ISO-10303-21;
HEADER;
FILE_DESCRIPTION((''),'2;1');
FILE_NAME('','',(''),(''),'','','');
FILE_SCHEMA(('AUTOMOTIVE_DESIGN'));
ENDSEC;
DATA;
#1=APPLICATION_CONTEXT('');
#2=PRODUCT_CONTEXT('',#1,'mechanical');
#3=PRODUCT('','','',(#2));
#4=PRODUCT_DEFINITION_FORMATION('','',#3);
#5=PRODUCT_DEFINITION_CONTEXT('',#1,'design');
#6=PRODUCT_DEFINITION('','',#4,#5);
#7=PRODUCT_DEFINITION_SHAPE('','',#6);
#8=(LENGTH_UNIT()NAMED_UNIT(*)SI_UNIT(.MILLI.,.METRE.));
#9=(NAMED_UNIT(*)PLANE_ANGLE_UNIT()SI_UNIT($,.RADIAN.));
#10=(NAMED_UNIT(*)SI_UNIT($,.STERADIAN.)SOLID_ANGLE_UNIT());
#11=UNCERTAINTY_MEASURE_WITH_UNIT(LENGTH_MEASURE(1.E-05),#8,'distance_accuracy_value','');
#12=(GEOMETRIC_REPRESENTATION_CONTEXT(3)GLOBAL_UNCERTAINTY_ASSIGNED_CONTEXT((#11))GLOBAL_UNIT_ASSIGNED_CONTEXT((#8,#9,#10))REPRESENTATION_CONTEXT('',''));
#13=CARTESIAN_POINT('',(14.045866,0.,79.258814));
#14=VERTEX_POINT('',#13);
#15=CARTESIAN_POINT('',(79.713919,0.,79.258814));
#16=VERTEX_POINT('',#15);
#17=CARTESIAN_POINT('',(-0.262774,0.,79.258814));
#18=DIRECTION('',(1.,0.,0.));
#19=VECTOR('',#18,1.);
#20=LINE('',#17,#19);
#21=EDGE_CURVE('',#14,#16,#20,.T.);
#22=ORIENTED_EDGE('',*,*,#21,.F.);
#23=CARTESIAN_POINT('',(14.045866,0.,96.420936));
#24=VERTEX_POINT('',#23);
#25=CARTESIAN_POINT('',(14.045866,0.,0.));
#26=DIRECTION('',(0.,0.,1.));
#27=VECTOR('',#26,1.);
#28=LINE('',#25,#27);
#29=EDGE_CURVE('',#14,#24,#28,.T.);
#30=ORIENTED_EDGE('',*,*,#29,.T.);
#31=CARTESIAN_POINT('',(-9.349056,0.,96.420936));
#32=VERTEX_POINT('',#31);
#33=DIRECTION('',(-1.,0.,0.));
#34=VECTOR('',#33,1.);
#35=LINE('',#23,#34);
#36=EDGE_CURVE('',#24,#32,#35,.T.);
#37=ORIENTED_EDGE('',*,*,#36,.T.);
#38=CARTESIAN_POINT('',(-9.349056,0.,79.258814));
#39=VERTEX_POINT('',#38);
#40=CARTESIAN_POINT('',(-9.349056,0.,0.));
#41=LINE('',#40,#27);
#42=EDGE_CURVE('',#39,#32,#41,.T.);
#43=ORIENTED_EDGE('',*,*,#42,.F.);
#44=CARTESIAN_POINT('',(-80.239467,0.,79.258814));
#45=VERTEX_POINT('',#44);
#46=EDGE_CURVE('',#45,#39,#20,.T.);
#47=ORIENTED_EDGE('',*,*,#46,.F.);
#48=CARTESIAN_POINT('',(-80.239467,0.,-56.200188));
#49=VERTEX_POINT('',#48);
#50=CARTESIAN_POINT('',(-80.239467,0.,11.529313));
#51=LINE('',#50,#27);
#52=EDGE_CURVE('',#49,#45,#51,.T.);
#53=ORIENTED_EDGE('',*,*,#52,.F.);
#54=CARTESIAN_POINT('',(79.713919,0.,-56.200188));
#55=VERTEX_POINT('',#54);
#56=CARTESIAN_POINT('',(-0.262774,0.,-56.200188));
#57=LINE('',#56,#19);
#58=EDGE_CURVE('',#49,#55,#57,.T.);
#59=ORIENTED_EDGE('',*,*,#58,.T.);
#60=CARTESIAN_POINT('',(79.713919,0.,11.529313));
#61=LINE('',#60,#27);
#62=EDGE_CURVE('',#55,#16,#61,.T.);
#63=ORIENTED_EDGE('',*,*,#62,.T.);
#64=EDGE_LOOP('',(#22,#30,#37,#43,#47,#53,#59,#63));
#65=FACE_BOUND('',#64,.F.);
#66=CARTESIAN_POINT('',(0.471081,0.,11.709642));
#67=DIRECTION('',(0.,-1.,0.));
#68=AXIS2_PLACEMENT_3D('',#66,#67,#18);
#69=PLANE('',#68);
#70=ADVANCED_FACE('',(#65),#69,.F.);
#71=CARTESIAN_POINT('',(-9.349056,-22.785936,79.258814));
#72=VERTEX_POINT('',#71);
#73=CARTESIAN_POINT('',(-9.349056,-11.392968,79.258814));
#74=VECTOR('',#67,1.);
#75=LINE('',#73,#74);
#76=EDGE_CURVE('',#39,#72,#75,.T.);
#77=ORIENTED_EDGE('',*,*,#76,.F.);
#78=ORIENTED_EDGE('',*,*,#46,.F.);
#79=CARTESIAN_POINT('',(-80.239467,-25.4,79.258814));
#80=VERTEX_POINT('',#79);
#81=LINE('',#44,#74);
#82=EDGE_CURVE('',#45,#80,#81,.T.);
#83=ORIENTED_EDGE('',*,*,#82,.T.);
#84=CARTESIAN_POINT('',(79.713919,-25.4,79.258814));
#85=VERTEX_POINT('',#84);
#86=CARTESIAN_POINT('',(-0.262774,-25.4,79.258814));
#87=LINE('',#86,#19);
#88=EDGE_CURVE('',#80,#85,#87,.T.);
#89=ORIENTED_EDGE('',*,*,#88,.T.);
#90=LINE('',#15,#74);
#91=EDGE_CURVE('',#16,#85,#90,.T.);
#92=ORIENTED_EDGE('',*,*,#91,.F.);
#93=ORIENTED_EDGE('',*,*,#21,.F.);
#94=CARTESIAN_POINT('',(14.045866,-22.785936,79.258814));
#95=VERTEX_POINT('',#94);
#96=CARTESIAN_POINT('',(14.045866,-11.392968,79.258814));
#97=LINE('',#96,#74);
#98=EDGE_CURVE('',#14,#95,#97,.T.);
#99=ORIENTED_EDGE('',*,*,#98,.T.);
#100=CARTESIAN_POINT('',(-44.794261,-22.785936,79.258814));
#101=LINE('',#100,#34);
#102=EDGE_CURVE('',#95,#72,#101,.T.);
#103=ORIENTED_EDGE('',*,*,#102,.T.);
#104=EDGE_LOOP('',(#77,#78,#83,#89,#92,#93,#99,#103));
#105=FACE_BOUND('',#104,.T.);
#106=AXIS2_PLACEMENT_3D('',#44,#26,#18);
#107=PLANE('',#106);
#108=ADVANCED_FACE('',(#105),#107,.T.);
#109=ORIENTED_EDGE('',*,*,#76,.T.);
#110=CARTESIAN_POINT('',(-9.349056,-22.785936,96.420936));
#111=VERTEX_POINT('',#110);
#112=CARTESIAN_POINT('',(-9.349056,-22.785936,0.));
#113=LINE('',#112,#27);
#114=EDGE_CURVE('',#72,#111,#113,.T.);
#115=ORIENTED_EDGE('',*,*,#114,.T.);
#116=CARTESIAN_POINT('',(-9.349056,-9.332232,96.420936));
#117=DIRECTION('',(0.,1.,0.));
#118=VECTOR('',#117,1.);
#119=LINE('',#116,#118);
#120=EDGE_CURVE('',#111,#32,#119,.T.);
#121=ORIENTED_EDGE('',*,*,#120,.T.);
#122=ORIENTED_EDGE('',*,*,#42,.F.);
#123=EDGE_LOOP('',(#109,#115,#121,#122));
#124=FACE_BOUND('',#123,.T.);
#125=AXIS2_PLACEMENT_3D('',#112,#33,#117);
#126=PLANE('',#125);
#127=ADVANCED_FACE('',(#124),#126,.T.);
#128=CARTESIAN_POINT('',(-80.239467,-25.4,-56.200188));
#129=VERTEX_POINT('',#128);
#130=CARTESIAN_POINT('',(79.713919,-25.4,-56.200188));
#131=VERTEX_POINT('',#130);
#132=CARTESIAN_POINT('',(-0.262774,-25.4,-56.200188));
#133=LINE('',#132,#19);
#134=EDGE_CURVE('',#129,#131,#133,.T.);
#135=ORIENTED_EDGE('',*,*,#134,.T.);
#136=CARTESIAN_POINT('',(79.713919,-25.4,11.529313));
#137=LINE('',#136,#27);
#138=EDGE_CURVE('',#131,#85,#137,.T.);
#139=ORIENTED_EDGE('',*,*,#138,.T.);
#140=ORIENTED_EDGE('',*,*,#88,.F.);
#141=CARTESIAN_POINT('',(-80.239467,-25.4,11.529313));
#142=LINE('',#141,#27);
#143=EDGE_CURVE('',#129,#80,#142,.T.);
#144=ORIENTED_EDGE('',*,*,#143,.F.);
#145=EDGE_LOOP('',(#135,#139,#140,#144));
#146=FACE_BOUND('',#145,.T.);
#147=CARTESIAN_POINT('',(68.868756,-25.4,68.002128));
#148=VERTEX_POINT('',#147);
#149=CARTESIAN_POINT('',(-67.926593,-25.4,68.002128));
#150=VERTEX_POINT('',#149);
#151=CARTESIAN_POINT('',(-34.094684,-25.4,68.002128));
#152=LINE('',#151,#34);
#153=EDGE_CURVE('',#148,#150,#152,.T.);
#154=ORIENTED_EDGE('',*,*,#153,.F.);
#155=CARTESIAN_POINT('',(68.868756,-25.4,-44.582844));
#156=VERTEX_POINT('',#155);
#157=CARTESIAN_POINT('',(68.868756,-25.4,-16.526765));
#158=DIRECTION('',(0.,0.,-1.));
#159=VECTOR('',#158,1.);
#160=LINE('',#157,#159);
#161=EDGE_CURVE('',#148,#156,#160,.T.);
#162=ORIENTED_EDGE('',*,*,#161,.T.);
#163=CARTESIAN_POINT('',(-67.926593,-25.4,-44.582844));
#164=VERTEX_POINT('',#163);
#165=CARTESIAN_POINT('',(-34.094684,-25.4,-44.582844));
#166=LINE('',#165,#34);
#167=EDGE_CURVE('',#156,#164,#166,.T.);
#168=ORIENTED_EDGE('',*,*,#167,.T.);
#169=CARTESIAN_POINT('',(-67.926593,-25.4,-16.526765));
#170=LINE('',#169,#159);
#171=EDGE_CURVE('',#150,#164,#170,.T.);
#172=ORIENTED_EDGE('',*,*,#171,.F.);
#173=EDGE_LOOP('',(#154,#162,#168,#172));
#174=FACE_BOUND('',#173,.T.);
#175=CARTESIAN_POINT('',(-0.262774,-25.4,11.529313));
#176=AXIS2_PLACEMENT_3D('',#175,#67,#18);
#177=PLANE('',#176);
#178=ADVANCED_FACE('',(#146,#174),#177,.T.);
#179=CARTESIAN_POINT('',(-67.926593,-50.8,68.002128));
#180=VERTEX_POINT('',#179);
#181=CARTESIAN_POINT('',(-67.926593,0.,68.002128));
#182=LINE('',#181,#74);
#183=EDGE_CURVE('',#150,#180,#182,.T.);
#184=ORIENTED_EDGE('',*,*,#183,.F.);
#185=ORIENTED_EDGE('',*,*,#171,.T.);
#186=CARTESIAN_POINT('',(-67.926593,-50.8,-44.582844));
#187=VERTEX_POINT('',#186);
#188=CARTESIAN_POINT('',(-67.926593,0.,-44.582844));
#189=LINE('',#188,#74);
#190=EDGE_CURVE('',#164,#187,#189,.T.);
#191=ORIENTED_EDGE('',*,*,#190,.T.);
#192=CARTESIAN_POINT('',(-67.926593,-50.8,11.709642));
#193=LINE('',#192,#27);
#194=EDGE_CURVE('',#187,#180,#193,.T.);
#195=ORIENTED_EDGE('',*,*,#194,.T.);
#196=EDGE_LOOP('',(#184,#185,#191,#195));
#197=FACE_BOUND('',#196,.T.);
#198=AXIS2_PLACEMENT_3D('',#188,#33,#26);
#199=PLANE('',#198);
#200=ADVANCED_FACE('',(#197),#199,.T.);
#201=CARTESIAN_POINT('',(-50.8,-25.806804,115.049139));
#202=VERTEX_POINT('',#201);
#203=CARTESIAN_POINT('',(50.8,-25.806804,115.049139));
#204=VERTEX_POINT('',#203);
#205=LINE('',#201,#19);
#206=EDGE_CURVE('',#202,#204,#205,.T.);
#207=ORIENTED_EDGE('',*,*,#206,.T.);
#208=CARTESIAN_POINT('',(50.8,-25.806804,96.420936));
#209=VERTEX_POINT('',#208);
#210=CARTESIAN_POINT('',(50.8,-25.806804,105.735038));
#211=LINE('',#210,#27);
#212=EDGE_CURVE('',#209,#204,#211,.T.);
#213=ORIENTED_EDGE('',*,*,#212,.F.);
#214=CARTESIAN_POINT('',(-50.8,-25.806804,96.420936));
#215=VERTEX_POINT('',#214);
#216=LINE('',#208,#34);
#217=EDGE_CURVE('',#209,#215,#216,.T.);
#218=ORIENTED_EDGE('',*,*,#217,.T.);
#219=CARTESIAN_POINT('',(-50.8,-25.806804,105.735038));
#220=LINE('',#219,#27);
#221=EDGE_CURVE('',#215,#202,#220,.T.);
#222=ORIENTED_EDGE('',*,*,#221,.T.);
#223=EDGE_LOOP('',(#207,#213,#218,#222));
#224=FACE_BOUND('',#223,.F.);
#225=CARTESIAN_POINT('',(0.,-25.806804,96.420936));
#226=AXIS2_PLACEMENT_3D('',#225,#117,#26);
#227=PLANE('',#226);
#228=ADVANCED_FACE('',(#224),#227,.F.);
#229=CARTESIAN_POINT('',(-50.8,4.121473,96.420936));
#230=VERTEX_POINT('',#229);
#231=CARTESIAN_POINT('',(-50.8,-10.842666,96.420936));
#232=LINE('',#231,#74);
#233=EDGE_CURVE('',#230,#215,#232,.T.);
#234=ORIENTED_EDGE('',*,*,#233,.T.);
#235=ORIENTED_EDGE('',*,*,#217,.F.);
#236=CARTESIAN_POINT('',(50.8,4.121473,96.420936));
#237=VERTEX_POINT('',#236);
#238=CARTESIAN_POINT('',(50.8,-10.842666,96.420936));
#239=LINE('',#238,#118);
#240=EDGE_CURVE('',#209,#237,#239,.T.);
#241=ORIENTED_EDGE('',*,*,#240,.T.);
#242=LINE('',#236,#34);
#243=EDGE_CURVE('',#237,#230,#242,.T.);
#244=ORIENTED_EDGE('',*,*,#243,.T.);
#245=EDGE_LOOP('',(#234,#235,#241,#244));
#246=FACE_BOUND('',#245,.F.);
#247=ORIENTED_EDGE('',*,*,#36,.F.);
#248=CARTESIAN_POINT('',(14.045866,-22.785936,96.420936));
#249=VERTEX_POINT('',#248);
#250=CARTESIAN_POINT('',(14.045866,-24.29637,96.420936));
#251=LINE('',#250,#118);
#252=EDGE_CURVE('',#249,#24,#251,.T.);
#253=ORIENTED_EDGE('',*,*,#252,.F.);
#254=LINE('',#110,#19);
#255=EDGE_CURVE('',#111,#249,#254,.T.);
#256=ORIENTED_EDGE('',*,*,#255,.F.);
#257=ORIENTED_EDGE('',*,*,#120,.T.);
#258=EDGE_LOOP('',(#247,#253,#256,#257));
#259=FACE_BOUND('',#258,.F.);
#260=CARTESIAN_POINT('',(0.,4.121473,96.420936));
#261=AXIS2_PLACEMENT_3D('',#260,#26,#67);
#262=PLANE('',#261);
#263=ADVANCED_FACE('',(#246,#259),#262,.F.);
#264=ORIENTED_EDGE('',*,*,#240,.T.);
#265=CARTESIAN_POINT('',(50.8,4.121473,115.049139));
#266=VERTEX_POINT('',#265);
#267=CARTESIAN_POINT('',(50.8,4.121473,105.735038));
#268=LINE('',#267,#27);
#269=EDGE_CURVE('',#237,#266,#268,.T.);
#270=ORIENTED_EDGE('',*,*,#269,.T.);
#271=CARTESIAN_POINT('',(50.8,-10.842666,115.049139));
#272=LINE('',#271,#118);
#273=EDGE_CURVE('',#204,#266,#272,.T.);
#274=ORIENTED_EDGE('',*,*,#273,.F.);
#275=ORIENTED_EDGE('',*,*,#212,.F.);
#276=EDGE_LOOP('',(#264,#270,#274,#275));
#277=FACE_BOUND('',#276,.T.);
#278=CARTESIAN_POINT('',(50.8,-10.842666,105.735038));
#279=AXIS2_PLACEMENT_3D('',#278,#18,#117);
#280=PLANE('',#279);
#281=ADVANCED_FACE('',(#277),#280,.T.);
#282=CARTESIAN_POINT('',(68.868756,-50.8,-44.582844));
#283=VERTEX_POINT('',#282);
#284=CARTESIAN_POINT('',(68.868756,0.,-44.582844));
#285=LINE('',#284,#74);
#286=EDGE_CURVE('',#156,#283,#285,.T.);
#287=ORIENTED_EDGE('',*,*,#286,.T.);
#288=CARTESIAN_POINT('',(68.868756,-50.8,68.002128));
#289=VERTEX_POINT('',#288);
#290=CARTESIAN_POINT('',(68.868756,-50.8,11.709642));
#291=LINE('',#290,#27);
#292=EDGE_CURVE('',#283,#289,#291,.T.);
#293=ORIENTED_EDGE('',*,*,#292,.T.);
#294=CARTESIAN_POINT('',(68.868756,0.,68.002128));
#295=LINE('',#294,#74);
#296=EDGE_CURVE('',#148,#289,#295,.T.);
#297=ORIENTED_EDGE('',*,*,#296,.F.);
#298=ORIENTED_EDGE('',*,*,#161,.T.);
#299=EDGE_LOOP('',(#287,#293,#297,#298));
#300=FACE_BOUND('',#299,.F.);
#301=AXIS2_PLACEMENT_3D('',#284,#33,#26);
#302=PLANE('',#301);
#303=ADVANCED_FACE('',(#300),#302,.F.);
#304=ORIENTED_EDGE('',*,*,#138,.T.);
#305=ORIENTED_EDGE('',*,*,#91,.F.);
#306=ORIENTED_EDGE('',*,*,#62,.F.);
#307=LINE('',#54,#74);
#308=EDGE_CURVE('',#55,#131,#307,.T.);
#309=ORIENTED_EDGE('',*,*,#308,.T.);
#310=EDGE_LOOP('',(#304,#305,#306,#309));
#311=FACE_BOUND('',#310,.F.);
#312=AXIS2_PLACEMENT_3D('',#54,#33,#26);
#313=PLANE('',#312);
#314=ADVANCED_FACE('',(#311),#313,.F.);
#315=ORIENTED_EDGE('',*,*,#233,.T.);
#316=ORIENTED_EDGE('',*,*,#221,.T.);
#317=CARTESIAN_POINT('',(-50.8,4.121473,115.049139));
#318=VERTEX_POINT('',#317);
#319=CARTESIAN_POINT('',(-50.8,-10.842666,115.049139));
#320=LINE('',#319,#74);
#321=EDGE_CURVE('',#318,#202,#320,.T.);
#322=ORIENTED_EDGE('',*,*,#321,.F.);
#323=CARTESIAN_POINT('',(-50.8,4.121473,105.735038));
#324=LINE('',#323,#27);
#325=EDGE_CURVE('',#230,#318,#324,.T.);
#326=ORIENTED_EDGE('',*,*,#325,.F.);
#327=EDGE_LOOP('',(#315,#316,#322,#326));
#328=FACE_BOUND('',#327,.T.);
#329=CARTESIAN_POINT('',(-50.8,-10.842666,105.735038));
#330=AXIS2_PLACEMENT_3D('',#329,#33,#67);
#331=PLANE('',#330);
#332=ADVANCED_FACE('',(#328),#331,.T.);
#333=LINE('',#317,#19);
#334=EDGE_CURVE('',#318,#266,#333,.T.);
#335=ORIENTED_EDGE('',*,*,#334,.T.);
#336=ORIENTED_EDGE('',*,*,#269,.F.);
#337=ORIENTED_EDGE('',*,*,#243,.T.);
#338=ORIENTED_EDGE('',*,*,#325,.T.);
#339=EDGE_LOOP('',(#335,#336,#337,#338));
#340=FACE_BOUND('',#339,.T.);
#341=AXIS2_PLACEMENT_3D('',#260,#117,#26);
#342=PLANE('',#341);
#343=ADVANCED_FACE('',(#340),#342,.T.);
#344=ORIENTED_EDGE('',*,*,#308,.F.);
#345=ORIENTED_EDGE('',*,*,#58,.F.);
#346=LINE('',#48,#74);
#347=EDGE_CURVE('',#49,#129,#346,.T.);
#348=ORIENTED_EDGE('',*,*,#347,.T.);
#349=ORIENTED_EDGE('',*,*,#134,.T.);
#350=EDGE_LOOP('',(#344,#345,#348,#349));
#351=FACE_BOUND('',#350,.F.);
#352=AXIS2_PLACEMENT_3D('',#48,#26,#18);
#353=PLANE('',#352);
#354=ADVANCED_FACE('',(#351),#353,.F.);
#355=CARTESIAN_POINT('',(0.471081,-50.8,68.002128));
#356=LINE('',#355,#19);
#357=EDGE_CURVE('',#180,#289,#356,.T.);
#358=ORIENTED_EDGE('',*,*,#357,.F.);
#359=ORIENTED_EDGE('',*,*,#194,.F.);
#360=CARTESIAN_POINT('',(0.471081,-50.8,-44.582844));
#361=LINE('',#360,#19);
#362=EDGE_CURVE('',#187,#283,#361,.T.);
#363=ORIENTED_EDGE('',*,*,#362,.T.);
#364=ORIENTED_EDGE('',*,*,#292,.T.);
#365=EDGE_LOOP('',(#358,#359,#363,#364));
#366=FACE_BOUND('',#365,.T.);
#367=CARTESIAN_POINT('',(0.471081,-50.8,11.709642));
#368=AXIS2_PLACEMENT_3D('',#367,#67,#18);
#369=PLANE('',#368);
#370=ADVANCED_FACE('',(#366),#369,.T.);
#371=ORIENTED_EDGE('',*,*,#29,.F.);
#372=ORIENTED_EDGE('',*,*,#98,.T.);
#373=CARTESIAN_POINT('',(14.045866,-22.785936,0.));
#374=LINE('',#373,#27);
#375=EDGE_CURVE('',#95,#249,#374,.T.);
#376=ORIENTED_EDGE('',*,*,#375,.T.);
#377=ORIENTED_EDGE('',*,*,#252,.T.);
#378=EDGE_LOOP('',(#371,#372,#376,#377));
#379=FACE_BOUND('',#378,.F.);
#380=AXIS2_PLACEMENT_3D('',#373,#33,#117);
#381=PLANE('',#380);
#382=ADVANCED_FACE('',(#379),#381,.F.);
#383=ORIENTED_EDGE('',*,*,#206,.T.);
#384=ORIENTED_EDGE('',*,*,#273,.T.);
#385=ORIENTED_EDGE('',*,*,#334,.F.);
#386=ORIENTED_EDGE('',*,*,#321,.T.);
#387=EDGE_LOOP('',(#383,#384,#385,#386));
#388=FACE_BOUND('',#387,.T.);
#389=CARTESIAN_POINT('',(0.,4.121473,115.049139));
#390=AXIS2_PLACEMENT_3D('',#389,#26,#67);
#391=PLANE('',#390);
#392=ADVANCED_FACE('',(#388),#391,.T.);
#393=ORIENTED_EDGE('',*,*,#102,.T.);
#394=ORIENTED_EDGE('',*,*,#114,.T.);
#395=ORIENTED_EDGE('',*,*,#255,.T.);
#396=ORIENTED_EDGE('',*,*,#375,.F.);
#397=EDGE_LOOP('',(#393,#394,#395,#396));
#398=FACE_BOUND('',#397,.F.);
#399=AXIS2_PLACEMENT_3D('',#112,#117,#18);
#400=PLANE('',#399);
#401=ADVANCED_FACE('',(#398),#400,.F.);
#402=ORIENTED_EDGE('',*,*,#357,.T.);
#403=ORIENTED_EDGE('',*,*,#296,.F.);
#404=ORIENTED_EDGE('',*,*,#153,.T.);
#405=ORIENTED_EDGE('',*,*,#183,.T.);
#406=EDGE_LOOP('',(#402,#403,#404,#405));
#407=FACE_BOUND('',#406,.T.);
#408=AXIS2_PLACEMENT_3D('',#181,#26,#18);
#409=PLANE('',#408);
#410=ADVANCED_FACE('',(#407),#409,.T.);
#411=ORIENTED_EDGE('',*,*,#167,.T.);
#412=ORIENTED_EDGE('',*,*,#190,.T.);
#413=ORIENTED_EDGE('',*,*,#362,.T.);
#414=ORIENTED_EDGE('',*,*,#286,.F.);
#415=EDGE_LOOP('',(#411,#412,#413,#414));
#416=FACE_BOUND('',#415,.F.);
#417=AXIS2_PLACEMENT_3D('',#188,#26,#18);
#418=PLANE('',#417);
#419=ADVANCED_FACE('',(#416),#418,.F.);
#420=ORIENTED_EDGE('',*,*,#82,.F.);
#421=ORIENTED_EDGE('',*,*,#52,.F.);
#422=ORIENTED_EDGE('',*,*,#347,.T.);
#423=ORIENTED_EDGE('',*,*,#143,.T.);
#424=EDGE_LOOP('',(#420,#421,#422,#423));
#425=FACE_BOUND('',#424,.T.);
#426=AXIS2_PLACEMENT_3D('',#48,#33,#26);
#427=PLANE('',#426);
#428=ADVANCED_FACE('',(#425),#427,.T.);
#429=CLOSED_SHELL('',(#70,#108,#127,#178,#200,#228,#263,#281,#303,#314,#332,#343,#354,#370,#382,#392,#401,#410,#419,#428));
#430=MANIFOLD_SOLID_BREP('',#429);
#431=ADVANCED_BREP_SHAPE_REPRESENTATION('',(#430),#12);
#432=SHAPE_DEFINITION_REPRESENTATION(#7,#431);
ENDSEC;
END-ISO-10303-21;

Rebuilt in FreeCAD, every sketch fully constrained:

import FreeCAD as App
import Part
import Sketcher

V = App.Vector
Q = App.Units.Quantity


def add_polygon(sketch, points):
    """Adds a closed chain of lines whose ends are joined by coincident constraints."""
    first, n = sketch.GeometryCount, len(points)
    for a, b in zip(points, points[1:] + points[:1]):
        sketch.addGeometry(Part.LineSegment(App.Vector(*a, 0), App.Vector(*b, 0)), False)
    for i in range(n):
        sketch.addConstraint(Sketcher.Constraint("Coincident", first + i, 2, first + (i + 1) % n, 1))

doc = App.newDocument("Part")
body = doc.addObject("PartDesign::Body", "Body")

# Sketch on XZ plane
sketch1 = body.newObject("Sketcher::SketchObject", "Sketch")
sketch1.AttachmentSupport = (doc.getObject("XZ_Plane"), [""])
sketch1.MapMode = "FlatFace"
add_polygon(sketch1, [(-80.239467, 79.258814), (-80.239467, -56.200188), (79.713919, -56.200188), (79.713919, 79.258814)])  # lines 0-3
sketch1.addConstraint([
    Sketcher.Constraint("Vertical", 0),
    Sketcher.Constraint("Horizontal", 1),
    Sketcher.Constraint("Vertical", 2),
    Sketcher.Constraint("Horizontal", 3),
    Sketcher.Constraint("DistanceY", 0, 2, 0, 1, Q("135.459002 mm")),
    Sketcher.Constraint("DistanceX", 1, 1, 1, 2, Q("159.953385 mm")),
    Sketcher.Constraint("DistanceX", -1, 1, 1, 2, Q("79.713919 mm")),
    Sketcher.Constraint("DistanceY", 0, 2, -1, 1, Q("56.200188 mm")),
])
pad1 = body.newObject("PartDesign::Pad", "Pad")
pad1.Profile = sketch1
pad1.Length = Q("1 in")

# Sketch on XY plane
sketch2 = body.newObject("Sketcher::SketchObject", "Sketch001")
sketch2.AttachmentSupport = (doc.getObject("XY_Plane"), [""])
sketch2.MapMode = "FlatFace"
add_polygon(sketch2, [(-9.349056, 0), (-9.349056, -22.785936), (14.045866, -22.785936), (14.045866, 0)])  # lines 0-3
sketch2.addConstraint([
    Sketcher.Constraint("Vertical", 0),
    Sketcher.Constraint("Horizontal", 1),
    Sketcher.Constraint("Vertical", 2),
    Sketcher.Constraint("Horizontal", 3),
    Sketcher.Constraint("PointOnObject", 2, 2, -1),
    Sketcher.Constraint("DistanceX", 1, 1, 1, 2, Q("23.394922 mm")),
    Sketcher.Constraint("DistanceY", 0, 2, 0, 1, Q("22.785936 mm")),
    Sketcher.Constraint("DistanceX", 0, 2, -1, 1, Q("9.349056 mm")),
])
pad2 = body.newObject("PartDesign::Pad", "Pad001")
pad2.Profile = sketch2
pad2.Length = Q("4 in")

# Sketch on YZ plane
sketch3 = body.newObject("Sketcher::SketchObject", "Sketch002")
sketch3.AttachmentSupport = (doc.getObject("YZ_Plane"), [""])
sketch3.MapMode = "FlatFace"
add_polygon(sketch3, [(-25.806804, 115.049139), (-25.806804, 96.420936), (4.121473, 96.420936), (4.121473, 115.049139)])  # lines 0-3
sketch3.addConstraint([
    Sketcher.Constraint("Vertical", 0),
    Sketcher.Constraint("Horizontal", 1),
    Sketcher.Constraint("Vertical", 2),
    Sketcher.Constraint("Horizontal", 3),
    Sketcher.Constraint("DistanceY", -1, 1, 0, 2, Q("3.7960999 in")),
    Sketcher.Constraint("DistanceX", 1, 1, 1, 2, Q("29.928277 mm")),
    Sketcher.Constraint("DistanceY", 0, 2, 0, 1, Q("18.628203 mm")),
    Sketcher.Constraint("DistanceX", 0, 2, -1, 1, Q("25.806804 mm")),
])
pad3 = body.newObject("PartDesign::Pad", "Pad002")
pad3.Profile = sketch3
pad3.Length = Q("2 in")

# Sketch on XZ plane
sketch4 = body.newObject("Sketcher::SketchObject", "Sketch003")
sketch4.AttachmentSupport = (doc.getObject("XZ_Plane"), [""])
sketch4.MapMode = "FlatFace"
add_polygon(sketch4, [(-67.926593, 68.002128), (-67.926593, -44.582844), (68.868756, -44.582844), (68.868756, 68.002128)])  # lines 0-3
sketch4.addConstraint([
    Sketcher.Constraint("Vertical", 0),
    Sketcher.Constraint("Horizontal", 1),
    Sketcher.Constraint("Vertical", 2),
    Sketcher.Constraint("Horizontal", 3),
    Sketcher.Constraint("DistanceX", 1, 1, 1, 2, Q("136.795349 mm")),
    Sketcher.Constraint("DistanceY", 0, 2, 0, 1, Q("112.584971 mm")),
    Sketcher.Constraint("DistanceX", 0, 2, -1, 1, Q("67.926593 mm")),
    Sketcher.Constraint("DistanceY", 0, 2, -1, 1, Q("44.582844 mm")),
])
pad4 = body.newObject("PartDesign::Pad", "Pad003")
pad4.Profile = sketch4
pad4.Length = Q("2 in")

# Sketch on YZ plane
sketch5 = body.newObject("Sketcher::SketchObject", "Sketch004")
sketch5.AttachmentSupport = (doc.getObject("YZ_Plane"), [""])
sketch5.MapMode = "FlatFace"
add_polygon(sketch5, [(4.121473, 115.049139), (4.121473, 96.420936), (-25.806804, 96.420936), (-25.806804, 115.049139)])  # lines 0-3
sketch5.addConstraint([
    Sketcher.Constraint("Vertical", 0),
    Sketcher.Constraint("Horizontal", 1),
    Sketcher.Constraint("Vertical", 2),
    Sketcher.Constraint("Horizontal", 3),
    Sketcher.Constraint("DistanceY", -1, 1, 0, 2, Q("3.7960999 in")),
    Sketcher.Constraint("DistanceX", 1, 2, 1, 1, Q("29.928277 mm")),
    Sketcher.Constraint("DistanceY", 0, 2, 0, 1, Q("18.628203 mm")),
    Sketcher.Constraint("DistanceX", -1, 1, 0, 2, Q("4.121473 mm")),
])
pad5 = body.newObject("PartDesign::Pad", "Pad004")
pad5.Profile = sketch5
pad5.Length = Q("2 in")
pad5.Reversed = True

doc.recompute()
